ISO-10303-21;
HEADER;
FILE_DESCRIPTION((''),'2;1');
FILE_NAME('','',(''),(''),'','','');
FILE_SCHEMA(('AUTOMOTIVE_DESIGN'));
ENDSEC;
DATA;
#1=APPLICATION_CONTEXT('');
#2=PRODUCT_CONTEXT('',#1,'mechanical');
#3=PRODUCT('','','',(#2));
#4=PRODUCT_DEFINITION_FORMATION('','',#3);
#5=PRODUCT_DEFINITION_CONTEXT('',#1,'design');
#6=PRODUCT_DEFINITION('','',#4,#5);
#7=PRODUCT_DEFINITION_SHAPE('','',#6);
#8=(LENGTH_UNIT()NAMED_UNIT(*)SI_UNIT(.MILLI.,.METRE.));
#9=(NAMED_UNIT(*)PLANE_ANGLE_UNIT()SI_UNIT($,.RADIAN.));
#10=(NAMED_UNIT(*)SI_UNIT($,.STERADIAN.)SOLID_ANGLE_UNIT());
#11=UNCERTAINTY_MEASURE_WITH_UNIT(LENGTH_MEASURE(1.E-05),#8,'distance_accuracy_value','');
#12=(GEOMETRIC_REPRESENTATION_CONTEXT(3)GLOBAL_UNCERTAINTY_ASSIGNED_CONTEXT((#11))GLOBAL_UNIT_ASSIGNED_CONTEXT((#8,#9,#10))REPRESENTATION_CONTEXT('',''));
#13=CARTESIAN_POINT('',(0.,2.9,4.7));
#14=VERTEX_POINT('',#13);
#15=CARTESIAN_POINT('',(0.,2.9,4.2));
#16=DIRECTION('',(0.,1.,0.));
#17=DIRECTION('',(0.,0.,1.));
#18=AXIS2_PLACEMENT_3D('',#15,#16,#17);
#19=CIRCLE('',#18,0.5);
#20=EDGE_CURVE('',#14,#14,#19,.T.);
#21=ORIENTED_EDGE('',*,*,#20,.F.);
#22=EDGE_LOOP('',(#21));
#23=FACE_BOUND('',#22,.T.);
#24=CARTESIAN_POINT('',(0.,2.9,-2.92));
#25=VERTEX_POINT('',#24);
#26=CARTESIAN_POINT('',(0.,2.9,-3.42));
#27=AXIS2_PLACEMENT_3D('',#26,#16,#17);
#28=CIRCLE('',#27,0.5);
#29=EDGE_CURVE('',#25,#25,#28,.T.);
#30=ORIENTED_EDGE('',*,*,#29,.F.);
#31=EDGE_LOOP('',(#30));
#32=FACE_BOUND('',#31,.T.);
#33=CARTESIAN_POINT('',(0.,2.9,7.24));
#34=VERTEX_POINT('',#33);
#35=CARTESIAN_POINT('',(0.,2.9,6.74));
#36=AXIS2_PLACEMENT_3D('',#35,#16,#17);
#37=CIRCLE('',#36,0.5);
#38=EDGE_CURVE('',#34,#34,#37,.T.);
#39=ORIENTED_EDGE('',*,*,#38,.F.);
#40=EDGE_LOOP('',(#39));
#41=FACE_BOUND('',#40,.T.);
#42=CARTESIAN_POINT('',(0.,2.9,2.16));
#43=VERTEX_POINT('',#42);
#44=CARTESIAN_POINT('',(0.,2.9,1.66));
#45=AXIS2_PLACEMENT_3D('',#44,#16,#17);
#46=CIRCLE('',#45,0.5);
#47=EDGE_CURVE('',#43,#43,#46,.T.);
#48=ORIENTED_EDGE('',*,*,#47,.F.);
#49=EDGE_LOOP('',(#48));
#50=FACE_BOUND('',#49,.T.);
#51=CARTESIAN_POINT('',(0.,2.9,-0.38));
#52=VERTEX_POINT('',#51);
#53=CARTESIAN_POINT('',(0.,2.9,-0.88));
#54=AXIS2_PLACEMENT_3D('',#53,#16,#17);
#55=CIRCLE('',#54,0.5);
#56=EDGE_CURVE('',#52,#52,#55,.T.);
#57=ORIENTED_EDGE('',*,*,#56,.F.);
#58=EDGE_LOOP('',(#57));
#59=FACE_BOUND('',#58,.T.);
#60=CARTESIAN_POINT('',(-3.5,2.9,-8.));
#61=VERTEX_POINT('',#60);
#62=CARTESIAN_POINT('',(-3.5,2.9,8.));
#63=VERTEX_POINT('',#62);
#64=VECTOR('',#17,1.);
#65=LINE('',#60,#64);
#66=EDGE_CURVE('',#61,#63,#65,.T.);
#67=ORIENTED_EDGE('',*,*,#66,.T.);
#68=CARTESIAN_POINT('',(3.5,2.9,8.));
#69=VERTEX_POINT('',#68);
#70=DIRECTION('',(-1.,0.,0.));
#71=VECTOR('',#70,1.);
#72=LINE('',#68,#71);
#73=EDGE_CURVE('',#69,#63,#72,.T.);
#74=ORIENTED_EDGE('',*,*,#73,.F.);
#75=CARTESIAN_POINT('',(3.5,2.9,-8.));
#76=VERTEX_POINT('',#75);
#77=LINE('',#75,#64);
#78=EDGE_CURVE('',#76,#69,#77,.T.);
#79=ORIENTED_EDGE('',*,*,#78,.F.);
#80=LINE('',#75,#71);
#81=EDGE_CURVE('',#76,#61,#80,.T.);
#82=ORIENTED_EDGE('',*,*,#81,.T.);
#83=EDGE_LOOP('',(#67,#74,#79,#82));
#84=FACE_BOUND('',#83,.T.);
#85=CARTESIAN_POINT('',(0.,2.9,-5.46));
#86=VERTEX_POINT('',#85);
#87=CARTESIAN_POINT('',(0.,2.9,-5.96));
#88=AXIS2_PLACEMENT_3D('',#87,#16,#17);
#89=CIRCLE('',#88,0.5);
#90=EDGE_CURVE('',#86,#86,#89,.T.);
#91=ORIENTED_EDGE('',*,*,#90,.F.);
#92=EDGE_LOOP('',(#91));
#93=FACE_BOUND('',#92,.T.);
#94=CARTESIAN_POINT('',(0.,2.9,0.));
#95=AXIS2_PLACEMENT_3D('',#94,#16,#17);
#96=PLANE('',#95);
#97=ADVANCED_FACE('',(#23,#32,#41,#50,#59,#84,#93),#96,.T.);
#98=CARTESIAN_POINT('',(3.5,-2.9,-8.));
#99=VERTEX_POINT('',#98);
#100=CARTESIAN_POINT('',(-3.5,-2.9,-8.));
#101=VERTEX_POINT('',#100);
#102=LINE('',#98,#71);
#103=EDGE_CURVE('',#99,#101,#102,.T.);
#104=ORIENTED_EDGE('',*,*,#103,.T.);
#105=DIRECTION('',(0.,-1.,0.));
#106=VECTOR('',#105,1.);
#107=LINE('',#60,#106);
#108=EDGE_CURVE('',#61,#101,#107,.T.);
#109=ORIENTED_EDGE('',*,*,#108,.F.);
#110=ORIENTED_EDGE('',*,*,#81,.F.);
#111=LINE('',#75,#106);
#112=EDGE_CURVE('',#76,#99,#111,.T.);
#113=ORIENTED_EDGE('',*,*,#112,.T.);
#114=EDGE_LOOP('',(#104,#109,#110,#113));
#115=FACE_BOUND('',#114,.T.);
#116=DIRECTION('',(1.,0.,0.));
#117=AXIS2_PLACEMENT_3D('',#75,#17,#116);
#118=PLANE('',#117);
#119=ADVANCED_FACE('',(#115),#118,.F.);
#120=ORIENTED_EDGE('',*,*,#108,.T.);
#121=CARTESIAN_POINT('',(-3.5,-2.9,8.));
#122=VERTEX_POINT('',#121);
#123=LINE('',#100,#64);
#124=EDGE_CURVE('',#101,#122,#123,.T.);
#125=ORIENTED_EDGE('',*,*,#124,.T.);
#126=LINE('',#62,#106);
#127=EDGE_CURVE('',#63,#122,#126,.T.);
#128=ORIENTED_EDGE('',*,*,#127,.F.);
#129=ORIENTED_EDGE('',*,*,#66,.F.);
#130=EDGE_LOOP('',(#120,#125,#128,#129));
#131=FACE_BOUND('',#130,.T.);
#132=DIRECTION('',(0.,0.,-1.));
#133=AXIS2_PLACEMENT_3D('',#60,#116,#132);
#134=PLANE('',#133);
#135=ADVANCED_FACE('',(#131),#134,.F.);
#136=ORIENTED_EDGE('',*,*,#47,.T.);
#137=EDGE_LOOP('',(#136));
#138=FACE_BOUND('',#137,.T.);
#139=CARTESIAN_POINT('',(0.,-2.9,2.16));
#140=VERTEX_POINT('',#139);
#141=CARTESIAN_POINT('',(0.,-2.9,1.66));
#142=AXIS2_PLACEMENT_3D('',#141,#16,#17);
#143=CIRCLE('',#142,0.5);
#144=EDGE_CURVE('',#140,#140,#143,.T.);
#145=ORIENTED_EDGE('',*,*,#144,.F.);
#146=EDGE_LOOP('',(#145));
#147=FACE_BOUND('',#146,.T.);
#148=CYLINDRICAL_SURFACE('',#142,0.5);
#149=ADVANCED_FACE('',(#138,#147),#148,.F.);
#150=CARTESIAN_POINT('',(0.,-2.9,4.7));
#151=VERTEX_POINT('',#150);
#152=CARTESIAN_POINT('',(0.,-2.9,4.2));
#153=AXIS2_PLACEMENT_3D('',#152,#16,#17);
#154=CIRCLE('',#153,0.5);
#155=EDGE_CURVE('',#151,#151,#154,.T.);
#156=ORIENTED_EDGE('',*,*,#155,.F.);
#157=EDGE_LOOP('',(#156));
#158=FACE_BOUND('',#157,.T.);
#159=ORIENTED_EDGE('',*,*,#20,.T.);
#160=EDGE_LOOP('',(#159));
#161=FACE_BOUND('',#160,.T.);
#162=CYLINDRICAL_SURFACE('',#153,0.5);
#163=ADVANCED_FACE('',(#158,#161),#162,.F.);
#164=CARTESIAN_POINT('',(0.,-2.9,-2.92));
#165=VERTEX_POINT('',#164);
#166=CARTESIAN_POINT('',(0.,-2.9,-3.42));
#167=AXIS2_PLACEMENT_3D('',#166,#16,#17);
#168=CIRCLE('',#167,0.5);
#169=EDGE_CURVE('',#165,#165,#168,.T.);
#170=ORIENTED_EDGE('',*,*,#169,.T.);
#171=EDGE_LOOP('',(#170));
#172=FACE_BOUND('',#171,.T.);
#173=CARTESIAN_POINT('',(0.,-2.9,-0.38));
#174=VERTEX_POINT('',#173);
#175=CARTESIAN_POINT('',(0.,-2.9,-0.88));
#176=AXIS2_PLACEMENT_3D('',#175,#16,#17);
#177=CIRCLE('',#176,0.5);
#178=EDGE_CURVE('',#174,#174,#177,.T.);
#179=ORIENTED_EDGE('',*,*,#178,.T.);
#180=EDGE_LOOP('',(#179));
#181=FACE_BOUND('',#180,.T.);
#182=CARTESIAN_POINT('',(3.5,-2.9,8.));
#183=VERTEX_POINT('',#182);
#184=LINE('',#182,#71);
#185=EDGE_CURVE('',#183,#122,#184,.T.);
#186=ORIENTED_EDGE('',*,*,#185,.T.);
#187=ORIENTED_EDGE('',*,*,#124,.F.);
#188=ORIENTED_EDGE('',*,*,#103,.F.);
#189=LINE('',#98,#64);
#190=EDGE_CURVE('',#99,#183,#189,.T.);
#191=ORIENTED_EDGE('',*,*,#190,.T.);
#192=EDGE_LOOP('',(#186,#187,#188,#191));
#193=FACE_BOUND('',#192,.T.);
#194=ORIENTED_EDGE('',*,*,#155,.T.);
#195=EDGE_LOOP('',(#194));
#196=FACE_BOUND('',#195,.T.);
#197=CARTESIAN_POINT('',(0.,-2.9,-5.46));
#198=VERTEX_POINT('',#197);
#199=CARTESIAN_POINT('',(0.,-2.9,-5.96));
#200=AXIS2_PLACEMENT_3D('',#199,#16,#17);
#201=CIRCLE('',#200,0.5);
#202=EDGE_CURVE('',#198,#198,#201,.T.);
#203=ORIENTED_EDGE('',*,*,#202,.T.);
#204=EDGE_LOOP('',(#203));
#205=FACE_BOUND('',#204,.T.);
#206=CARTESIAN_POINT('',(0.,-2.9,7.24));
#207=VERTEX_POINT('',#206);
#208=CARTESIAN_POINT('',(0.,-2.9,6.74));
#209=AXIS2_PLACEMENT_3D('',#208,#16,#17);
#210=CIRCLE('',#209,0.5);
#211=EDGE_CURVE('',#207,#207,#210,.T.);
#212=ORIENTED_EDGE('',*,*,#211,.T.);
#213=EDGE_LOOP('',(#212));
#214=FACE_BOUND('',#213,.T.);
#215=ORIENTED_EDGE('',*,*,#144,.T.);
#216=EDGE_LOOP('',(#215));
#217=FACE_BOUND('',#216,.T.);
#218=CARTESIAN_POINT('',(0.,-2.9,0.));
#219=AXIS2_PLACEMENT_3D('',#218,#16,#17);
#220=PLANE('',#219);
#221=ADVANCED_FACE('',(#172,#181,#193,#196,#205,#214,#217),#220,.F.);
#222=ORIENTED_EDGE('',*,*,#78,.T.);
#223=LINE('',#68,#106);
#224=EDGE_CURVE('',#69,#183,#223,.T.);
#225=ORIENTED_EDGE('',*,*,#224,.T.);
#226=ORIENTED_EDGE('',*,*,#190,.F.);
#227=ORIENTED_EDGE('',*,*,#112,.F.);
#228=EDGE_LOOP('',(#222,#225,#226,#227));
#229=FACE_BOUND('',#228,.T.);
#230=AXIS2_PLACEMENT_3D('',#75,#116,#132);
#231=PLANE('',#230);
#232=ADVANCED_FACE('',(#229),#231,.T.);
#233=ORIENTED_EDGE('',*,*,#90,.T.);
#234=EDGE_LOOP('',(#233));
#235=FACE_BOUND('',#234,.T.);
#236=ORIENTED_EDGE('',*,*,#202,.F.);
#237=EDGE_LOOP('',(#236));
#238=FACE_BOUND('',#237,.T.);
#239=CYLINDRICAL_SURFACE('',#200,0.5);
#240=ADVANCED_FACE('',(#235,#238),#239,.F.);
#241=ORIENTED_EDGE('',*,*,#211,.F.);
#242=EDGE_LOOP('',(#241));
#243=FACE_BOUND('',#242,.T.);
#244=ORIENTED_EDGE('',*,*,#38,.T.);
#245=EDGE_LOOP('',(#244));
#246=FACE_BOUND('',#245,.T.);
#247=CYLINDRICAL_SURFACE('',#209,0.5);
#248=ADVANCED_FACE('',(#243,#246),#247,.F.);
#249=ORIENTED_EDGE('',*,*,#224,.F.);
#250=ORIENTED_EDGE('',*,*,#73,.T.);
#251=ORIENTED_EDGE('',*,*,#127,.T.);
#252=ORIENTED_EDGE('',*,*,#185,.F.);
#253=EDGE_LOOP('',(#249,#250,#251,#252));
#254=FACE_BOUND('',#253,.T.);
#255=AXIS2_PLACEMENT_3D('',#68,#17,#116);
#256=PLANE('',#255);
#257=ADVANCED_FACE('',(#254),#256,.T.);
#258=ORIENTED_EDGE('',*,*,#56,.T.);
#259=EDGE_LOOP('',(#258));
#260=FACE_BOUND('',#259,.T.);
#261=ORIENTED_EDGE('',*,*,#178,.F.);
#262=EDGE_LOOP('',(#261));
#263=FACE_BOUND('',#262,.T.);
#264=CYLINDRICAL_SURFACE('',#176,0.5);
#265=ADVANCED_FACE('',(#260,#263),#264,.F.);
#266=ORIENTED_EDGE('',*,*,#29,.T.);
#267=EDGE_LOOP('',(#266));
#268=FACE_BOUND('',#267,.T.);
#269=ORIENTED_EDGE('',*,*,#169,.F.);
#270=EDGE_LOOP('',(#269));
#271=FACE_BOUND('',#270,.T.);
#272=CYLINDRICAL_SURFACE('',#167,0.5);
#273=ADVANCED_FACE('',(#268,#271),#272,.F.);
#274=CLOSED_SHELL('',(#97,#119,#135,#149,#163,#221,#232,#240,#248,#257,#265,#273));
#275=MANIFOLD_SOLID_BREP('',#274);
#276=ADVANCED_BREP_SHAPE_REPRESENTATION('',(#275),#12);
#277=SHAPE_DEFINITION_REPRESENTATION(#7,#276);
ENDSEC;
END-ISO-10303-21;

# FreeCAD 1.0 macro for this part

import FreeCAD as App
import Part
import Sketcher
from FreeCAD import Vector

doc = App.newDocument("Part")
body = doc.addObject("PartDesign::Body", "Body")

# Sketch on XZ plane
sketch1 = body.newObject("Sketcher::SketchObject", "Sketch")
sketch1.AttachmentSupport = (doc.getObject("XZ_Plane"), [""])
sketch1.MapMode = "FlatFace"
sketch1.addGeometry(Part.LineSegment(Vector(-4, -8, 0), Vector(-4, 8, 0)), False)
sketch1.addGeometry(Part.LineSegment(Vector(-4, 8, 0), Vector(4, 8, 0)), False)
sketch1.addGeometry(Part.LineSegment(Vector(4, 8, 0), Vector(4, -8, 0)), False)
sketch1.addGeometry(Part.LineSegment(Vector(4, -8, 0), Vector(-4, -8, 0)), False)
sketch1.addConstraint(Sketcher.Constraint("Coincident", 0, 2, 1, 1))
sketch1.addConstraint(Sketcher.Constraint("Coincident", 1, 2, 2, 1))
sketch1.addConstraint(Sketcher.Constraint("Coincident", 2, 2, 3, 1))
sketch1.addConstraint(Sketcher.Constraint("Coincident", 3, 2, 0, 1))
sketch1.addConstraint(Sketcher.Constraint("Vertical", 0))
sketch1.addConstraint(Sketcher.Constraint("Horizontal", 1))
sketch1.addConstraint(Sketcher.Constraint("Vertical", 2))
sketch1.addConstraint(Sketcher.Constraint("Horizontal", 3))
sketch1.addConstraint(Sketcher.Constraint("Symmetric", 0, 2, 2, 2, -1, 1))
sketch1.addConstraint(Sketcher.Constraint("DistanceX", 1, 1, 1, 2, 7.0))
sketch1.addConstraint(Sketcher.Constraint("DistanceY", 0, 1, 0, 2, 16.0))
pad1 = body.newObject("PartDesign::Pad", "Pad")
pad1.Profile = sketch1
pad1.Length = 5.8
pad1.Midplane = True

# Sketch on XZ plane
sketch2 = body.newObject("Sketcher::SketchObject", "Sketch001")
sketch2.AttachmentSupport = (doc.getObject("XZ_Plane"), [""])
sketch2.MapMode = "FlatFace"
sketch2.AttachmentOffset = App.Placement(Vector(0, 0, -2.9), App.Rotation())
sketch2.addGeometry(Part.Circle(Vector(0, -6, 0), Vector(0, 0, 1), 0.5), False)
sketch2.addConstraint(Sketcher.Constraint("PointOnObject", 0, 3, -2))
sketch2.addConstraint(Sketcher.Constraint("Diameter", 0, 1.0))
sketch2.addConstraint(Sketcher.Constraint("DistanceY", 0, 3, -1, 1, 5.96))
pocket1 = body.newObject("PartDesign::Pocket", "Pocket")
pocket1.Profile = sketch2
pocket1.Type = "ThroughAll"
pocket1.Reversed = True
doc.recompute()

linearpattern = body.newObject("PartDesign::LinearPattern", "LinearPattern")
linearpattern.Originals = [pocket1]
linearpattern.Direction = (doc.getObject("Z_Axis"), [""])
linearpattern.Mode = "offset"
linearpattern.Offset = 2.54
linearpattern.Occurrences = 12
body.Tip = linearpattern

doc.recompute()
